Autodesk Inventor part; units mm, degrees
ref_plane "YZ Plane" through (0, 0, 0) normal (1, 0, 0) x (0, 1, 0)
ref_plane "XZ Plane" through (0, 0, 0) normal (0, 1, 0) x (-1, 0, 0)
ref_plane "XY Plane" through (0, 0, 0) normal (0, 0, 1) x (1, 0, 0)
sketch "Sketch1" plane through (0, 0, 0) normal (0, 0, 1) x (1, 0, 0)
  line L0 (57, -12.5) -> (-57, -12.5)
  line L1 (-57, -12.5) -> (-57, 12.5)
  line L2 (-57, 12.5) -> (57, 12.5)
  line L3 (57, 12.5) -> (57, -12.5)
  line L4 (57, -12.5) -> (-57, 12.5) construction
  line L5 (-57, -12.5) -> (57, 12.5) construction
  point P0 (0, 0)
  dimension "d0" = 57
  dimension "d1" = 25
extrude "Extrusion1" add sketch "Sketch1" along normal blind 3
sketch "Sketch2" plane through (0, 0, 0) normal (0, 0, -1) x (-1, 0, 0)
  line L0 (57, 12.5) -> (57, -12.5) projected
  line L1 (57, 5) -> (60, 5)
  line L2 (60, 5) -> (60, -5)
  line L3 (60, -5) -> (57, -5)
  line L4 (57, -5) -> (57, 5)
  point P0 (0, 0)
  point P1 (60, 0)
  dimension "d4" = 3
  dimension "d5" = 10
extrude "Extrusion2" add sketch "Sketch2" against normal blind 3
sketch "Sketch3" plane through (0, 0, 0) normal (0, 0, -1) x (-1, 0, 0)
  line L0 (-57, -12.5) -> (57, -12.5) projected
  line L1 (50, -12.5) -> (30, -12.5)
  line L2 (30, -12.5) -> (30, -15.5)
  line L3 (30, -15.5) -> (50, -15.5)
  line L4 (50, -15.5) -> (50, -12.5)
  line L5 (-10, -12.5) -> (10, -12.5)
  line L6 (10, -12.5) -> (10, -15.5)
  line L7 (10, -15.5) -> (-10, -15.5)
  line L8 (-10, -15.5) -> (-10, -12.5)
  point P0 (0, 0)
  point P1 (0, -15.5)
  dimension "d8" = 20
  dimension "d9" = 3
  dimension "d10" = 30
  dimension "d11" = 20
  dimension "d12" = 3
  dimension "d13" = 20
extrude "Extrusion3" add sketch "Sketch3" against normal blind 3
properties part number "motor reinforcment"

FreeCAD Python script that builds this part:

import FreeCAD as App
import Part
import Sketcher
from FreeCAD import Vector


def add_polygon(sketch, points):
    """Adds a closed chain of lines whose ends are joined by coincident constraints."""
    first, n = sketch.GeometryCount, len(points)
    for a, b in zip(points, points[1:] + points[:1]):
        sketch.addGeometry(Part.LineSegment(App.Vector(*a, 0), App.Vector(*b, 0)), False)
    for i in range(n):
        sketch.addConstraint(Sketcher.Constraint("Coincident", first + i, 2, first + (i + 1) % n, 1))

doc = App.newDocument("Part")
body = doc.addObject("PartDesign::Body", "Body")

sketch1 = body.newObject("Sketcher::SketchObject", "Sketch")
sketch1.AttachmentSupport = (doc.getObject("XY_Plane"), [""])
sketch1.MapMode = "FlatFace"
add_polygon(sketch1, [(-57, -12), (57, -12), (57, 12), (-57, 12)])
sketch1.addConstraint([
    Sketcher.Constraint("Horizontal", 0),
    Sketcher.Constraint("Vertical", 1),
    Sketcher.Constraint("Horizontal", 2),
    Sketcher.Constraint("Vertical", 3),
    Sketcher.Constraint("Symmetric", 0, 2, 2, 2, -1, 1),
    Sketcher.Constraint("DistanceY", 1, 1, 1, 2, 25.0),
    Sketcher.Constraint("DistanceX", -1, 1, 0, 2, 57.0),
])
pad1 = body.newObject("PartDesign::Pad", "Pad")
pad1.Profile = sketch1
pad1.Length = 3

sketch2 = body.newObject("Sketcher::SketchObject", "Sketch001")
sketch2.AttachmentSupport = (doc.getObject("XY_Plane"), [""])
sketch2.MapMode = "FlatFace"
add_polygon(sketch2, [(-60, 5), (-57, 5), (-57, -5), (-60, -5)])
sketch2.addConstraint([
    Sketcher.Constraint("Horizontal", 0),
    Sketcher.Constraint("Vertical", 1),
    Sketcher.Constraint("Horizontal", 2),
    Sketcher.Constraint("Vertical", 3),
    Sketcher.Constraint("DistanceX", 0, 1, 0, 2, 3.0),
    Sketcher.Constraint("DistanceY", 1, 2, 1, 1, 10.0),
    Sketcher.Constraint("DistanceX", 0, 2, -1, 1, 57.0),
    Sketcher.Constraint("DistanceY", -1, 1, 0, 2, 5.0),
])
pad2 = body.newObject("PartDesign::Pad", "Pad001")
pad2.Profile = sketch2
pad2.Length = 3

sketch3 = body.newObject("Sketcher::SketchObject", "Sketch002")
sketch3.AttachmentSupport = (doc.getObject("XY_Plane"), [""])
sketch3.MapMode = "FlatFace"
add_polygon(sketch3, [(-50, -12.5), (-30, -12.5), (-30, -15.5), (-50, -15.5)])
add_polygon(sketch3, [(-10, -12.5), (10, -12.5), (10, -15.5), (-10, -15.5)])
sketch3.addConstraint([
    Sketcher.Constraint("Horizontal", 0),
    Sketcher.Constraint("Vertical", 1),
    Sketcher.Constraint("Horizontal", 2),
    Sketcher.Constraint("Vertical", 3),
    Sketcher.Constraint("Horizontal", 4),
    Sketcher.Constraint("Vertical", 5),
    Sketcher.Constraint("Horizontal", 6),
    Sketcher.Constraint("Vertical", 7),
    Sketcher.Constraint("Horizontal", 3, 2, 4, 2),
    Sketcher.Constraint("Horizontal", 2, 2, 5, 2),
    Sketcher.Constraint("Equal", 2, 4),
    Sketcher.Constraint("DistanceX", 0, 1, 0, 2, 20.0),
    Sketcher.Constraint("DistanceY", 1, 2, 1, 1, 3.0),
    Sketcher.Constraint("DistanceX", 0, 2, -1, 1, 30.0),
    Sketcher.Constraint("DistanceX", 1, 2, 6, 2, 20.0),
    Sketcher.Constraint("DistanceY", 0, 2, -1, 1, 12.5),
])
pad3 = body.newObject("PartDesign::Pad", "Pad002")
pad3.Profile = sketch3
pad3.Length = 3

doc.recompute()
